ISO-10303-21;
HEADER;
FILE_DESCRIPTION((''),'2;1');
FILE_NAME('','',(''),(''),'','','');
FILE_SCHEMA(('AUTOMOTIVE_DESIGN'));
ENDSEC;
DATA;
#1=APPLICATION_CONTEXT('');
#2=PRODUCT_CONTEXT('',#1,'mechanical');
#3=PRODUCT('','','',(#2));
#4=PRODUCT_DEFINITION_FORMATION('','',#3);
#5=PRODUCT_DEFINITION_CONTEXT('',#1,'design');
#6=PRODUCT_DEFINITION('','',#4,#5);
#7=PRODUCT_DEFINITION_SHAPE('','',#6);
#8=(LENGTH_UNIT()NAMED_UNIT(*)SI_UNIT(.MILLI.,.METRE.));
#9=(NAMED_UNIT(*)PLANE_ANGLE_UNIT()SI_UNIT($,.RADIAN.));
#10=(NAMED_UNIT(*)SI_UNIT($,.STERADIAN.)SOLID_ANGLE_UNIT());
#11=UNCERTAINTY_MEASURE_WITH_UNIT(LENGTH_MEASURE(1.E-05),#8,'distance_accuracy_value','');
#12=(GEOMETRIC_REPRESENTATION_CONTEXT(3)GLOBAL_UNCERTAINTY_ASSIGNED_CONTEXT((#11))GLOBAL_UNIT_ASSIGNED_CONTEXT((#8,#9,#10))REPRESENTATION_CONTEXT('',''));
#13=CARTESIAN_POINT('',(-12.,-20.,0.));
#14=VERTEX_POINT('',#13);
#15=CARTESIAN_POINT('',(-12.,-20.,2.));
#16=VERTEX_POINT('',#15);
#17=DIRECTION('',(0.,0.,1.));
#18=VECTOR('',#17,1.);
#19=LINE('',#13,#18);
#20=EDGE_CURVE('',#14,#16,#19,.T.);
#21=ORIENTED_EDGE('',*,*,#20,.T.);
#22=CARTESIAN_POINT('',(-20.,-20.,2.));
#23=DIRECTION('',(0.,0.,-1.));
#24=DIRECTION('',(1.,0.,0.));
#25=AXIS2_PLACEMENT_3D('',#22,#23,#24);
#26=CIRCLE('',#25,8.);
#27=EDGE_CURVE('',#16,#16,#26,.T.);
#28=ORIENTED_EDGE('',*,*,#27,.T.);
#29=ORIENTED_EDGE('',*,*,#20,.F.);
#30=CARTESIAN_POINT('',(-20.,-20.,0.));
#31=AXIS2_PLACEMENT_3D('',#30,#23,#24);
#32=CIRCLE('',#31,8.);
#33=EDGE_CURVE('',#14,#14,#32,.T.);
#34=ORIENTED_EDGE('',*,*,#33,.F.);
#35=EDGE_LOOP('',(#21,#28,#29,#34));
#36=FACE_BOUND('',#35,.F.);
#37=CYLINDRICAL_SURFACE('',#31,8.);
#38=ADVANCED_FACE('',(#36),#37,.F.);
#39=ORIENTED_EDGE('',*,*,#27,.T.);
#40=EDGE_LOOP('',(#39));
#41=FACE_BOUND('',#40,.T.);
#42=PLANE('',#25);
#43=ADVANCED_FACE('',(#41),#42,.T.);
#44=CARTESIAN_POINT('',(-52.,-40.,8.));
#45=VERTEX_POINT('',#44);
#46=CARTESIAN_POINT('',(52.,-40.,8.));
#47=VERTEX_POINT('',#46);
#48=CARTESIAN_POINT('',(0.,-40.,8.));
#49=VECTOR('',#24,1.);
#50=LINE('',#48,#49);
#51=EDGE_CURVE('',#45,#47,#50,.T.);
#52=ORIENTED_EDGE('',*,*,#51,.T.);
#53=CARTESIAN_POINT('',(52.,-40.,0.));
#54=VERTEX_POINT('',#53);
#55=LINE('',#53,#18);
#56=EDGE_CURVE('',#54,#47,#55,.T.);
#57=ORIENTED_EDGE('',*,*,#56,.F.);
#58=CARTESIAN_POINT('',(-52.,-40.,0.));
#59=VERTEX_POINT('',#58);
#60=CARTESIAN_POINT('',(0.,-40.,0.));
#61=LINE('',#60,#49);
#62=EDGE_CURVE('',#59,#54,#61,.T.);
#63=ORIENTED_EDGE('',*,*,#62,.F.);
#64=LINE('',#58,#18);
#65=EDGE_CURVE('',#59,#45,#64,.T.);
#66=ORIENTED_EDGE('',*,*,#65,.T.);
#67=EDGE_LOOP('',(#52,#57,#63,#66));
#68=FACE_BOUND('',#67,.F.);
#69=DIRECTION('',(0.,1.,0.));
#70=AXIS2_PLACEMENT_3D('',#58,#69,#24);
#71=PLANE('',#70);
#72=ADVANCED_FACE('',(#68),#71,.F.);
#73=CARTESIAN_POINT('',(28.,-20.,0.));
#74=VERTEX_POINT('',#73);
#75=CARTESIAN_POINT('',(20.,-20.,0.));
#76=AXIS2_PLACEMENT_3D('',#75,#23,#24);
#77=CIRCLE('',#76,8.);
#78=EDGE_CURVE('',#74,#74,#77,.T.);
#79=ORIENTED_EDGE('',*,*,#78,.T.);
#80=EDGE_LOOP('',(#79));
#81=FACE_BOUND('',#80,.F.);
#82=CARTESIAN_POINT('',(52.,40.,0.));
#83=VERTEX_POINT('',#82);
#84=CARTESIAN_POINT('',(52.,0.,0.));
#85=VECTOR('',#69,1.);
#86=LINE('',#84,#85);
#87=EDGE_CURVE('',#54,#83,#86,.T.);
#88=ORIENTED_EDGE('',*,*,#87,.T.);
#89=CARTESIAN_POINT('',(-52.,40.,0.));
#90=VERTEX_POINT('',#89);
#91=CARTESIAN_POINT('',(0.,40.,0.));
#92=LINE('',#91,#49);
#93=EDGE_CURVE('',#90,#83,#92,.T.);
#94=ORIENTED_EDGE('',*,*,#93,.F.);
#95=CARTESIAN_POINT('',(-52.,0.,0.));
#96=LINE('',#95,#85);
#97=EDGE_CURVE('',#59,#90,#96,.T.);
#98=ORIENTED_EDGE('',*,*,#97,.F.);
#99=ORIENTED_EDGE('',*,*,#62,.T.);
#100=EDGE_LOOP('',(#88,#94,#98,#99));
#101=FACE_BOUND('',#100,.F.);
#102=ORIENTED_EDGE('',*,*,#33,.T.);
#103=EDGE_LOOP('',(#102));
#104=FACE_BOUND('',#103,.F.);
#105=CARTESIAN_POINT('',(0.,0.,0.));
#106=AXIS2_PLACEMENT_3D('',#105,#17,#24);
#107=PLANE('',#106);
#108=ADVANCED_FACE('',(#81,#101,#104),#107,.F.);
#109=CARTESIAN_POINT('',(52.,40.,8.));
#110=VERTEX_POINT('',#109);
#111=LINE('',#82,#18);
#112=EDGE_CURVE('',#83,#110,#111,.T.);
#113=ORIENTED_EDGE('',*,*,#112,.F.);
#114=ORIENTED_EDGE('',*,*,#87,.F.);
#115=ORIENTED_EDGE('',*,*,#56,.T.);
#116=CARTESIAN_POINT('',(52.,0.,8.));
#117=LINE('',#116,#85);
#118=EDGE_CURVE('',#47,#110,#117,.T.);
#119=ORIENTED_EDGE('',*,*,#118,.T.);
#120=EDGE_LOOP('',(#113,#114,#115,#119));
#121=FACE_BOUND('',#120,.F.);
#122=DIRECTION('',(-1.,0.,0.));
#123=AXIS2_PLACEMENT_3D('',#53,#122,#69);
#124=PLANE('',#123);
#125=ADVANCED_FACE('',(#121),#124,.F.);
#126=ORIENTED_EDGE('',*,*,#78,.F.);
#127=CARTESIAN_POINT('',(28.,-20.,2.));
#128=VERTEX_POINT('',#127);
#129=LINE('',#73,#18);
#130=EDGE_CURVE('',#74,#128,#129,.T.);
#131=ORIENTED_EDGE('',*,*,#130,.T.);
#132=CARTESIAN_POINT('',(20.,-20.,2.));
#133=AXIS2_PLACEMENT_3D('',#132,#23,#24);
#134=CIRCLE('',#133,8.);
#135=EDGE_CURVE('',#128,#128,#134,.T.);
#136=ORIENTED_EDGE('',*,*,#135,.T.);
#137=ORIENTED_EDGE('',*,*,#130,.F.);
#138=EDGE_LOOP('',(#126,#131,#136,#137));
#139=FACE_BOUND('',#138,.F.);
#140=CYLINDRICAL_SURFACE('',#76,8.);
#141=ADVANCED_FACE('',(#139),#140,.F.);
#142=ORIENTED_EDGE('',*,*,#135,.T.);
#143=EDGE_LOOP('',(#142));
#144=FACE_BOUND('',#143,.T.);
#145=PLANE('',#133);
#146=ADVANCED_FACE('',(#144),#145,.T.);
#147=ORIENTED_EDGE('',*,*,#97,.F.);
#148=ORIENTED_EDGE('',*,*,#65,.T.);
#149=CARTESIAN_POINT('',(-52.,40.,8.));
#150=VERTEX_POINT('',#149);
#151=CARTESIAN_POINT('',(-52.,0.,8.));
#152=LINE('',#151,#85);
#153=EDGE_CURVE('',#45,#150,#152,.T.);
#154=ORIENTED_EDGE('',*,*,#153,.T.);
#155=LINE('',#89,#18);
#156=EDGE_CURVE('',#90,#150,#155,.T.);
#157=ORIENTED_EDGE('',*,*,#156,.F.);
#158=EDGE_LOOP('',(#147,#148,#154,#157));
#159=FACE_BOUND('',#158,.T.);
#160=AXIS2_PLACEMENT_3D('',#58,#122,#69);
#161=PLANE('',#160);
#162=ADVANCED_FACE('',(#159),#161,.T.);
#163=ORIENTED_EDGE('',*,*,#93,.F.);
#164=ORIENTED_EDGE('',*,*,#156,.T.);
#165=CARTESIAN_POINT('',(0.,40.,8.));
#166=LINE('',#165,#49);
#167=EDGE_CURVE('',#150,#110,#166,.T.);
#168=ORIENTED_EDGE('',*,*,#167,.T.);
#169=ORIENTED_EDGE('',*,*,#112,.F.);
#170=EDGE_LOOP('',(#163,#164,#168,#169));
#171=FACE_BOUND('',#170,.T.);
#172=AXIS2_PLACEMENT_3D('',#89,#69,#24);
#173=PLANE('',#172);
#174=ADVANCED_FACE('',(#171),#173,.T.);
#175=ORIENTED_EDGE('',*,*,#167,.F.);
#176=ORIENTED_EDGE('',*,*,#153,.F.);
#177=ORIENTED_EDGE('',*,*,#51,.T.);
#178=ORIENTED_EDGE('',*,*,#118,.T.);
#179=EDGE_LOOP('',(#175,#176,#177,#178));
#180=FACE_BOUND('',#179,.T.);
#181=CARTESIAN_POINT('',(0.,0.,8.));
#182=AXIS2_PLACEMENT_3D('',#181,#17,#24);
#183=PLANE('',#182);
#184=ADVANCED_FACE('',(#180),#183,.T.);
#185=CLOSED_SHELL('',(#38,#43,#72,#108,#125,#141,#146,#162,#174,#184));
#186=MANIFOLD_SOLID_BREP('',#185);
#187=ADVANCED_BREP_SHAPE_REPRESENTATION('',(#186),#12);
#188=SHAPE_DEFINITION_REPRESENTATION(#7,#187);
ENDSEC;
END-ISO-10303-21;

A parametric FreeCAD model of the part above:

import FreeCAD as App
import Part
import Sketcher

doc = App.newDocument("Part")
body = doc.addObject("PartDesign::Body", "Body")

# Sketch on XY plane
sketch1 = body.newObject("Sketcher::SketchObject", "Sketch")
sketch1.AttachmentSupport = (doc.getObject("XY_Plane"), [""])
sketch1.MapMode = "FlatFace"
sketch1.addGeometry([
    Part.LineSegment(App.Vector(-52, 40, 0), App.Vector(-52, -40, 0)),
    Part.LineSegment(App.Vector(-52, -40, 0), App.Vector(52, -40, 0)),
    Part.LineSegment(App.Vector(52, -40, 0), App.Vector(52, 40, 0)),
    Part.LineSegment(App.Vector(52, 40, 0), App.Vector(-52, 40, 0)),
], False)
sketch1.addConstraint([
    Sketcher.Constraint("Coincident", 0, 2, 1, 1),
    Sketcher.Constraint("Coincident", 1, 2, 2, 1),
    Sketcher.Constraint("Coincident", 2, 2, 3, 1),
    Sketcher.Constraint("Coincident", 3, 2, 0, 1),
    Sketcher.Constraint("Vertical", 0),
    Sketcher.Constraint("Horizontal", 1),
    Sketcher.Constraint("Vertical", 2),
    Sketcher.Constraint("Horizontal", 3),
    Sketcher.Constraint("Symmetric", 0, 2, 2, 2, -1, 1),
    Sketcher.Constraint("DistanceX", 1, 1, 1, 2, 104.0),
    Sketcher.Constraint("DistanceY", 0, 2, 0, 1, 80.0),
])
pad1 = body.newObject("PartDesign::Pad", "Pad")
pad1.Profile = sketch1
pad1.Length = 8

# Sketch on XY plane
sketch2 = body.newObject("Sketcher::SketchObject", "Sketch001")
sketch2.AttachmentSupport = (doc.getObject("XY_Plane"), [""])
sketch2.MapMode = "FlatFace"
sketch2.addGeometry([
    Part.Circle(App.Vector(20, -20, 0), App.Vector(0, 0, 1), 8),
    Part.Circle(App.Vector(-20, -20, 0), App.Vector(0, 0, 1), 8),
], False)
sketch2.addConstraint([
    Sketcher.Constraint("Equal", 0, 1),
    Sketcher.Constraint("Symmetric", 0, 3, 1, 3, -2),
    Sketcher.Constraint("Diameter", 0, 16.0),
    Sketcher.Constraint("DistanceX", -1, 1, 0, 3, 20.0),
    Sketcher.Constraint("DistanceY", 0, 3, -1, 1, 20.0),
])
pocket1 = body.newObject("PartDesign::Pocket", "Pocket")
pocket1.Profile = sketch2
pocket1.Length = 2
pocket1.Reversed = True

doc.recompute()
